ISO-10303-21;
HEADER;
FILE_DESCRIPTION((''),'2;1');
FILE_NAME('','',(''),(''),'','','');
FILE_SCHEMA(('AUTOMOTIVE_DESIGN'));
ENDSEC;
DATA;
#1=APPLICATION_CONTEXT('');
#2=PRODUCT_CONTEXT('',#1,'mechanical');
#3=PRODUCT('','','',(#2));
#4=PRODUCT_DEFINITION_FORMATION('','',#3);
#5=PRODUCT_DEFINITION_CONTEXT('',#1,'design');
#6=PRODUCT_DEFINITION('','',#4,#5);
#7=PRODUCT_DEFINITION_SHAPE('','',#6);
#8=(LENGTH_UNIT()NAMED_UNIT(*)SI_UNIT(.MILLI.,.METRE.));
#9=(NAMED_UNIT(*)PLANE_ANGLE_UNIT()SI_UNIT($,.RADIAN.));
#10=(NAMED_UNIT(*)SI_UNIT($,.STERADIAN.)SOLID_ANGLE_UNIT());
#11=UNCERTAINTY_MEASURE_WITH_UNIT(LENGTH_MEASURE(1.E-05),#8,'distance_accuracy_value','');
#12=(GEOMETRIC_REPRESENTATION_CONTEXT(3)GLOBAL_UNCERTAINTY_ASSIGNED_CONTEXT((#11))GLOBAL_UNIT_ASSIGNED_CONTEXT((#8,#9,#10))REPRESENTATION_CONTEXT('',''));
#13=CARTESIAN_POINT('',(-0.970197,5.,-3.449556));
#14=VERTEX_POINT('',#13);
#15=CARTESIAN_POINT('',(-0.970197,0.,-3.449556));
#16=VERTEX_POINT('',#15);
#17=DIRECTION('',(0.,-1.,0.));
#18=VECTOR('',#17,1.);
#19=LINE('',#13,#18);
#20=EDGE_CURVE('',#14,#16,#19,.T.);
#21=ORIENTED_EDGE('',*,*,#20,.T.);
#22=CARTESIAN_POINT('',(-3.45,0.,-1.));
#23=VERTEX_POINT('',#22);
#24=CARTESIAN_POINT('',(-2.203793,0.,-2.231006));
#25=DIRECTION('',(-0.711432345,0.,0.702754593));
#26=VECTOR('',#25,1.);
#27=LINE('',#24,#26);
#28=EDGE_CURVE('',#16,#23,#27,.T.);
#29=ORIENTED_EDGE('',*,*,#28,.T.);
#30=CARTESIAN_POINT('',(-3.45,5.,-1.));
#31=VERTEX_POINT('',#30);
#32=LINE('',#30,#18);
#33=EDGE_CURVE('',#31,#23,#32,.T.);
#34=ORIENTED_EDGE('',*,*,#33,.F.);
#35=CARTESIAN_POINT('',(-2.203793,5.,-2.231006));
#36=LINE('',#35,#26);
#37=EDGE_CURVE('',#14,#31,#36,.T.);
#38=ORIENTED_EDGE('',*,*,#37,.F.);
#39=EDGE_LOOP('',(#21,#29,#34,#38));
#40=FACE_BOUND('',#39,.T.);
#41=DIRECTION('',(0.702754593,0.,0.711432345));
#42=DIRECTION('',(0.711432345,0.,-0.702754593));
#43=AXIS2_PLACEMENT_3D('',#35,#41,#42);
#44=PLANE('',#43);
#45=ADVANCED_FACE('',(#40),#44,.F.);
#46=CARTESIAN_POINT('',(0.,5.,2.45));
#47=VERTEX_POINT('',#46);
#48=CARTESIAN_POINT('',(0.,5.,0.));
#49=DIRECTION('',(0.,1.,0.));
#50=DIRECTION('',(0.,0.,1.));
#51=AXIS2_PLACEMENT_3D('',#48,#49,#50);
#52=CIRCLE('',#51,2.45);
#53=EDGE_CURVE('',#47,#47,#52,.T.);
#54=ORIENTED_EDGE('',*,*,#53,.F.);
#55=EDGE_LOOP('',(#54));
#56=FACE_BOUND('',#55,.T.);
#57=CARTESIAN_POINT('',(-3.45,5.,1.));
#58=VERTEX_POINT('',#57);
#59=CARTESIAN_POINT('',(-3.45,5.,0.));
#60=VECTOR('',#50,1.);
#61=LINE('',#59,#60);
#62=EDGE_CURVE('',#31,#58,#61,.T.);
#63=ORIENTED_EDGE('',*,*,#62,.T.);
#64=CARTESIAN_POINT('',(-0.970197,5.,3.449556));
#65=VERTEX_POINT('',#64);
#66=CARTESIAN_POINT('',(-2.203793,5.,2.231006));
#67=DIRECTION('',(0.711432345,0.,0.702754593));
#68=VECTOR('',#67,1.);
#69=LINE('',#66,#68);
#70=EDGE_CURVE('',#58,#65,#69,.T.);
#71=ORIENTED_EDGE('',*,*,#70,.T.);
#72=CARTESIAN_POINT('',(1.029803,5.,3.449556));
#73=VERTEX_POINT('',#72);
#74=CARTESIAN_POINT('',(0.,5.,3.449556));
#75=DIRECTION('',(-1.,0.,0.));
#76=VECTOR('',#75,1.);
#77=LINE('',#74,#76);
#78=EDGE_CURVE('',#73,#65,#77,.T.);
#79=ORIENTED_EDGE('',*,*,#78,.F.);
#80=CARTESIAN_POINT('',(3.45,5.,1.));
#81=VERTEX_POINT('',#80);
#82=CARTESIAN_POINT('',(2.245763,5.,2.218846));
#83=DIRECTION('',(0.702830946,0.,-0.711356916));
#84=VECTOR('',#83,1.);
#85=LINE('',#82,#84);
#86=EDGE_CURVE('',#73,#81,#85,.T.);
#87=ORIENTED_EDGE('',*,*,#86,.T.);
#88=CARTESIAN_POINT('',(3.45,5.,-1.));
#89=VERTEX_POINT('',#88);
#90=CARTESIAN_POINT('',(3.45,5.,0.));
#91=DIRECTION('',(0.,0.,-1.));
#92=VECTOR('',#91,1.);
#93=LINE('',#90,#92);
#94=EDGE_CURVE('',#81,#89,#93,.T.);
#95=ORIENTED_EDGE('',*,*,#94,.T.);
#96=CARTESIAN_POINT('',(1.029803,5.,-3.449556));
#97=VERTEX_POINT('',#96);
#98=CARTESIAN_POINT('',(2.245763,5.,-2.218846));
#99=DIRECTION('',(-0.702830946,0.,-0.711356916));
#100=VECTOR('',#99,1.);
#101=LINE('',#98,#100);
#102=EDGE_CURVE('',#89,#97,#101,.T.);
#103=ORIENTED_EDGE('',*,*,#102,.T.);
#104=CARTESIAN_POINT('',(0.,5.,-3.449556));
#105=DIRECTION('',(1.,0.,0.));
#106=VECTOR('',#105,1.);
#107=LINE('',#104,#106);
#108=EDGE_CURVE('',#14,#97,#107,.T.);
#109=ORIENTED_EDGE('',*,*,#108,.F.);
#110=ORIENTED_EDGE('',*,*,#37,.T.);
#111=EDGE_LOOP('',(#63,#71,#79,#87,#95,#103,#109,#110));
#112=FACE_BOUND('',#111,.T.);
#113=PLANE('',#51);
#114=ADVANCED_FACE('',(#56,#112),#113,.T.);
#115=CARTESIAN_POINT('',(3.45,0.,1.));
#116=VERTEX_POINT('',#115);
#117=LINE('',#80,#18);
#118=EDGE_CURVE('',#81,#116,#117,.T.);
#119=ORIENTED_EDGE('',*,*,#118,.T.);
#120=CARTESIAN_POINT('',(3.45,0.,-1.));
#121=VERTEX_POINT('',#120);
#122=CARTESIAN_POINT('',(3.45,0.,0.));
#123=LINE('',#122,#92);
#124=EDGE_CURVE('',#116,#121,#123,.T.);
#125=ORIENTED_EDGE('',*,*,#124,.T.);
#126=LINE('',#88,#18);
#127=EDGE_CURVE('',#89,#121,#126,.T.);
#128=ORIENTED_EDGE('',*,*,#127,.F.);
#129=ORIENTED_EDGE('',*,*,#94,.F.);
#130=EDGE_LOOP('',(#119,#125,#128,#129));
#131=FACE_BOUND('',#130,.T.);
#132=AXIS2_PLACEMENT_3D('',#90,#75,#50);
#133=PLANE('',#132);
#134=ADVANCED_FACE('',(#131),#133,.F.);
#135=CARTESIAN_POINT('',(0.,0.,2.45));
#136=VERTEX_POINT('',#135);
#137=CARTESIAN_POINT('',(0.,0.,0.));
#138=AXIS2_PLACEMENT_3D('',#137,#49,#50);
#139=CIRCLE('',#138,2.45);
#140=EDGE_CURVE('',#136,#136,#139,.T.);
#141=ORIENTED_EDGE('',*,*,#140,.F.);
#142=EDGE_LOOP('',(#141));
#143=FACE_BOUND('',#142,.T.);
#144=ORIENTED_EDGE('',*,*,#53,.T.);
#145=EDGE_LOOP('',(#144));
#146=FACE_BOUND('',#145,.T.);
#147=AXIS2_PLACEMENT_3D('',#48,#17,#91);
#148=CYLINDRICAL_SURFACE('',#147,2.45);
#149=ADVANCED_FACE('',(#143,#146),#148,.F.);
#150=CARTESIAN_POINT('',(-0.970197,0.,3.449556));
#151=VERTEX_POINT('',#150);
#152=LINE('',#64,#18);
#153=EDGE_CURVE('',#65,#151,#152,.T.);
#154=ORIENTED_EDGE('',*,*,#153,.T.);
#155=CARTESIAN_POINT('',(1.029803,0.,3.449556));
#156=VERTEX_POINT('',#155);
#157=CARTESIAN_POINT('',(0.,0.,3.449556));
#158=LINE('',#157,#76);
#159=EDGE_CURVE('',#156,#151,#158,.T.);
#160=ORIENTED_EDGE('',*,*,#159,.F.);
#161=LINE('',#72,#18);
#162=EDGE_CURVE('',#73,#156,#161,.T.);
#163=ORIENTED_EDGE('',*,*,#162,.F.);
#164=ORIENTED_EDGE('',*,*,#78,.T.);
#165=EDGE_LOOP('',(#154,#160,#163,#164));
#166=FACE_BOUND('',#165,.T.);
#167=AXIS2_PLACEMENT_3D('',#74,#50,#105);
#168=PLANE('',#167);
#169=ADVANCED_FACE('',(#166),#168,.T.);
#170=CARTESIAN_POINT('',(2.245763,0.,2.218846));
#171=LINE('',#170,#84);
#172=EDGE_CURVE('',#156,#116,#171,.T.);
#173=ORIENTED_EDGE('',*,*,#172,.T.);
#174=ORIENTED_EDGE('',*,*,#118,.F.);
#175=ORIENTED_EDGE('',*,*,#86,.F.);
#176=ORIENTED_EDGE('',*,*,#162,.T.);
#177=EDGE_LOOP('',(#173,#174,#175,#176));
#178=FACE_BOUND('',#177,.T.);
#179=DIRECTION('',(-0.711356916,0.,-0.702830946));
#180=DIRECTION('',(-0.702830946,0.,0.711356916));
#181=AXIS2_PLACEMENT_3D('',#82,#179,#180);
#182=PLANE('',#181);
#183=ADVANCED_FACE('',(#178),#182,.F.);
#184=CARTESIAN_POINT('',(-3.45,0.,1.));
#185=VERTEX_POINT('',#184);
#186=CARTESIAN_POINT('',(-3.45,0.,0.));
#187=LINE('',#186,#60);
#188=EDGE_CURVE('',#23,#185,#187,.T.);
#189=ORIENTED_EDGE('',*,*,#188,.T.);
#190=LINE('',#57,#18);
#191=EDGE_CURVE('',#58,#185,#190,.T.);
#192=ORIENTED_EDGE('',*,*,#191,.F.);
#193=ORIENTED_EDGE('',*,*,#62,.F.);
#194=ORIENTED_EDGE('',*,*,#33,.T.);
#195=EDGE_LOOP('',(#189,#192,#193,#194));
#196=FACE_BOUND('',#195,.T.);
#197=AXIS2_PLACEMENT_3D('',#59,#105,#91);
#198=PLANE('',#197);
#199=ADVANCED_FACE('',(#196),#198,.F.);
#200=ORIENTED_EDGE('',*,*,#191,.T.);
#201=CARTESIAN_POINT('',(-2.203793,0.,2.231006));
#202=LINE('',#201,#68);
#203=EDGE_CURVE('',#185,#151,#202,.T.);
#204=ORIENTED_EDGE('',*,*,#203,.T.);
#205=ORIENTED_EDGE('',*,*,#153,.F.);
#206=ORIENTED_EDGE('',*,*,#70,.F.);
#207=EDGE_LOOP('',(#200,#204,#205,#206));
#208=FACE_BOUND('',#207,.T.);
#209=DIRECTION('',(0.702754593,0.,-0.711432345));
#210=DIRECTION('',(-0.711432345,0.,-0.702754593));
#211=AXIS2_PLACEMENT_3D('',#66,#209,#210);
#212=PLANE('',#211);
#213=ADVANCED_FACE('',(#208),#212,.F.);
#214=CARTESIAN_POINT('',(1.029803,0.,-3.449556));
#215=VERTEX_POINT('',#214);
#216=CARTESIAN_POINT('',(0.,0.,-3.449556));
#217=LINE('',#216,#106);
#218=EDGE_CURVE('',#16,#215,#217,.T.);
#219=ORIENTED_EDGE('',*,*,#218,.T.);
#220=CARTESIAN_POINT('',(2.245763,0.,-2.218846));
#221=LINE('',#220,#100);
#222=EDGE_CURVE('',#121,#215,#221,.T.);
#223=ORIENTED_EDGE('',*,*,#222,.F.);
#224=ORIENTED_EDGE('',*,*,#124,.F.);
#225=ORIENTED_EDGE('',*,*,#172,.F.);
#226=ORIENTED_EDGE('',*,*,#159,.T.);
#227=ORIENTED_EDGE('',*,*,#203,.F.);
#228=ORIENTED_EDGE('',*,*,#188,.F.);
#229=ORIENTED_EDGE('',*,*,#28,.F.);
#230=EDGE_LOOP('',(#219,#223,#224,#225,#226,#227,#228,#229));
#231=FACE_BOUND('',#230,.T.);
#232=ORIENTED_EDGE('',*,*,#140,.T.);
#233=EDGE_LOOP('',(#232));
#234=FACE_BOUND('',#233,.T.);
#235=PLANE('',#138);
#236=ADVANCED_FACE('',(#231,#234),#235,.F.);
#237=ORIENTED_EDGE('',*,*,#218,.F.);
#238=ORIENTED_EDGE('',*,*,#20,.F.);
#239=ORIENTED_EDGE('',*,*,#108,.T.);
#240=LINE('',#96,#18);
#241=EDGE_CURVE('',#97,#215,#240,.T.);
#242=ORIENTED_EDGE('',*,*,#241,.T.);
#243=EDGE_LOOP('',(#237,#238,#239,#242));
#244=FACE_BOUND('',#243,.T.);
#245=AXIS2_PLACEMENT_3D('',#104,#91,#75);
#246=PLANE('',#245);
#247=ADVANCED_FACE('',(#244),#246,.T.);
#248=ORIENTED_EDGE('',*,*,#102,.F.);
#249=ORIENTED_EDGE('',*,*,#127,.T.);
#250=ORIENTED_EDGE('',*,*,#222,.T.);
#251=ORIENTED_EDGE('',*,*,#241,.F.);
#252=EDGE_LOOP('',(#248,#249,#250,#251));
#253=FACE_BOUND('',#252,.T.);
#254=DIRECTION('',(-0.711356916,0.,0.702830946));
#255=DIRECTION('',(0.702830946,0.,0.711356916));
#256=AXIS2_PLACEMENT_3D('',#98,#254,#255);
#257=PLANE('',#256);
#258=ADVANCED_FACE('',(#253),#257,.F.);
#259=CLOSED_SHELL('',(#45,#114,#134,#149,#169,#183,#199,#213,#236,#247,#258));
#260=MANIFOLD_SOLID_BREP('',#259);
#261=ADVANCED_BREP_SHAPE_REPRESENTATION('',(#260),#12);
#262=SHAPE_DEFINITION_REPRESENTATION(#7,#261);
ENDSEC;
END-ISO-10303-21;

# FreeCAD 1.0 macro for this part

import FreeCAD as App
import Part
import Sketcher
from FreeCAD import Vector
Q = App.Units.Quantity


def add_polygon(sketch, points):
    """Adds a closed chain of lines whose ends are joined by coincident constraints."""
    first, n = sketch.GeometryCount, len(points)
    for a, b in zip(points, points[1:] + points[:1]):
        sketch.addGeometry(Part.LineSegment(App.Vector(*a, 0), App.Vector(*b, 0)), False)
    for i in range(n):
        sketch.addConstraint(Sketcher.Constraint("Coincident", first + i, 2, first + (i + 1) % n, 1))

doc = App.newDocument("Part")
params = doc.addObject("Spreadsheet::Sheet", "Params")
for row, (alias, value) in enumerate([
    ("sketch1_diameter", "4.9 mm"),
    ("sketch1_width", "2 mm"),
    ("pad1_length", "5 mm"),
], start=1):
    params.set(f"A{row}", alias)
    params.set(f"B{row}", "=" + value)
    params.setAlias(f"B{row}", alias)

body = doc.addObject("PartDesign::Body", "Body")

# Sketch on XZ plane
sketch1 = body.newObject("Sketcher::SketchObject", "Sketch")
sketch1.AttachmentSupport = (doc.getObject("XZ_Plane"), [""])
sketch1.MapMode = "FlatFace"
add_polygon(sketch1, [(-1, -3.4), (-3.5, -1), (-3.5, 1), (-1, 3.4), (1, 3.4), (3.5, 1), (3.5, -1), (1, -3.4)])  # lines 0-7
sketch1.addGeometry(Part.Circle(Vector(0, 0, 0), Vector(0, 0, 1), 2.5), False)  # 8
sketch1.addConstraint(Sketcher.Constraint("Vertical", 1))
sketch1.addConstraint(Sketcher.Constraint("Horizontal", 3))
sketch1.addConstraint(Sketcher.Constraint("Vertical", 5))
sketch1.addConstraint(Sketcher.Constraint("Horizontal", 7))
sketch1.addConstraint(Sketcher.Constraint("Coincident", 8, 3, -1, 1))
sketch1.addConstraint(Sketcher.Constraint("Symmetric", 0, 2, 4, 2, -1, 1))
sketch1.addConstraint(Sketcher.Constraint("Symmetric", 3, 2, 6, 2, -1))
sketch1.addConstraint(Sketcher.Constraint("Horizontal", 1, 2, 4, 2))
sketch1.addConstraint(Sketcher.Constraint("Horizontal", 0, 2, 5, 2))
sketch1.addConstraint(Sketcher.Constraint("Vertical", 2, 2, 7, 2))
sketch1.addConstraint(Sketcher.Constraint("Equal", 7, 1))
sketch1.addConstraint(Sketcher.Constraint("Diameter", 8, Q("4.9 mm")))
sketch1.addConstraint(Sketcher.Constraint("DistanceX", 3, 1, 3, 2, Q("2 mm")))
sketch1.addConstraint(Sketcher.Constraint("DistanceX", 1, 2, 4, 2, Q("6.9 mm")))
sketch1.addConstraint(Sketcher.Constraint("Distance", 0, Q("3.485649 mm")))
sketch1.addConstraint(Sketcher.Constraint("Distance", 4, Q("3.443498 mm")))
sketch1.setExpression("Constraints[19]", "Params.sketch1_diameter")
sketch1.setExpression("Constraints[20]", "Params.sketch1_width")
pad1 = body.newObject("PartDesign::Pad", "Pad")
pad1.Profile = sketch1
pad1.setExpression("Length", "Params.pad1_length")
pad1.Reversed = True

doc.recompute()
